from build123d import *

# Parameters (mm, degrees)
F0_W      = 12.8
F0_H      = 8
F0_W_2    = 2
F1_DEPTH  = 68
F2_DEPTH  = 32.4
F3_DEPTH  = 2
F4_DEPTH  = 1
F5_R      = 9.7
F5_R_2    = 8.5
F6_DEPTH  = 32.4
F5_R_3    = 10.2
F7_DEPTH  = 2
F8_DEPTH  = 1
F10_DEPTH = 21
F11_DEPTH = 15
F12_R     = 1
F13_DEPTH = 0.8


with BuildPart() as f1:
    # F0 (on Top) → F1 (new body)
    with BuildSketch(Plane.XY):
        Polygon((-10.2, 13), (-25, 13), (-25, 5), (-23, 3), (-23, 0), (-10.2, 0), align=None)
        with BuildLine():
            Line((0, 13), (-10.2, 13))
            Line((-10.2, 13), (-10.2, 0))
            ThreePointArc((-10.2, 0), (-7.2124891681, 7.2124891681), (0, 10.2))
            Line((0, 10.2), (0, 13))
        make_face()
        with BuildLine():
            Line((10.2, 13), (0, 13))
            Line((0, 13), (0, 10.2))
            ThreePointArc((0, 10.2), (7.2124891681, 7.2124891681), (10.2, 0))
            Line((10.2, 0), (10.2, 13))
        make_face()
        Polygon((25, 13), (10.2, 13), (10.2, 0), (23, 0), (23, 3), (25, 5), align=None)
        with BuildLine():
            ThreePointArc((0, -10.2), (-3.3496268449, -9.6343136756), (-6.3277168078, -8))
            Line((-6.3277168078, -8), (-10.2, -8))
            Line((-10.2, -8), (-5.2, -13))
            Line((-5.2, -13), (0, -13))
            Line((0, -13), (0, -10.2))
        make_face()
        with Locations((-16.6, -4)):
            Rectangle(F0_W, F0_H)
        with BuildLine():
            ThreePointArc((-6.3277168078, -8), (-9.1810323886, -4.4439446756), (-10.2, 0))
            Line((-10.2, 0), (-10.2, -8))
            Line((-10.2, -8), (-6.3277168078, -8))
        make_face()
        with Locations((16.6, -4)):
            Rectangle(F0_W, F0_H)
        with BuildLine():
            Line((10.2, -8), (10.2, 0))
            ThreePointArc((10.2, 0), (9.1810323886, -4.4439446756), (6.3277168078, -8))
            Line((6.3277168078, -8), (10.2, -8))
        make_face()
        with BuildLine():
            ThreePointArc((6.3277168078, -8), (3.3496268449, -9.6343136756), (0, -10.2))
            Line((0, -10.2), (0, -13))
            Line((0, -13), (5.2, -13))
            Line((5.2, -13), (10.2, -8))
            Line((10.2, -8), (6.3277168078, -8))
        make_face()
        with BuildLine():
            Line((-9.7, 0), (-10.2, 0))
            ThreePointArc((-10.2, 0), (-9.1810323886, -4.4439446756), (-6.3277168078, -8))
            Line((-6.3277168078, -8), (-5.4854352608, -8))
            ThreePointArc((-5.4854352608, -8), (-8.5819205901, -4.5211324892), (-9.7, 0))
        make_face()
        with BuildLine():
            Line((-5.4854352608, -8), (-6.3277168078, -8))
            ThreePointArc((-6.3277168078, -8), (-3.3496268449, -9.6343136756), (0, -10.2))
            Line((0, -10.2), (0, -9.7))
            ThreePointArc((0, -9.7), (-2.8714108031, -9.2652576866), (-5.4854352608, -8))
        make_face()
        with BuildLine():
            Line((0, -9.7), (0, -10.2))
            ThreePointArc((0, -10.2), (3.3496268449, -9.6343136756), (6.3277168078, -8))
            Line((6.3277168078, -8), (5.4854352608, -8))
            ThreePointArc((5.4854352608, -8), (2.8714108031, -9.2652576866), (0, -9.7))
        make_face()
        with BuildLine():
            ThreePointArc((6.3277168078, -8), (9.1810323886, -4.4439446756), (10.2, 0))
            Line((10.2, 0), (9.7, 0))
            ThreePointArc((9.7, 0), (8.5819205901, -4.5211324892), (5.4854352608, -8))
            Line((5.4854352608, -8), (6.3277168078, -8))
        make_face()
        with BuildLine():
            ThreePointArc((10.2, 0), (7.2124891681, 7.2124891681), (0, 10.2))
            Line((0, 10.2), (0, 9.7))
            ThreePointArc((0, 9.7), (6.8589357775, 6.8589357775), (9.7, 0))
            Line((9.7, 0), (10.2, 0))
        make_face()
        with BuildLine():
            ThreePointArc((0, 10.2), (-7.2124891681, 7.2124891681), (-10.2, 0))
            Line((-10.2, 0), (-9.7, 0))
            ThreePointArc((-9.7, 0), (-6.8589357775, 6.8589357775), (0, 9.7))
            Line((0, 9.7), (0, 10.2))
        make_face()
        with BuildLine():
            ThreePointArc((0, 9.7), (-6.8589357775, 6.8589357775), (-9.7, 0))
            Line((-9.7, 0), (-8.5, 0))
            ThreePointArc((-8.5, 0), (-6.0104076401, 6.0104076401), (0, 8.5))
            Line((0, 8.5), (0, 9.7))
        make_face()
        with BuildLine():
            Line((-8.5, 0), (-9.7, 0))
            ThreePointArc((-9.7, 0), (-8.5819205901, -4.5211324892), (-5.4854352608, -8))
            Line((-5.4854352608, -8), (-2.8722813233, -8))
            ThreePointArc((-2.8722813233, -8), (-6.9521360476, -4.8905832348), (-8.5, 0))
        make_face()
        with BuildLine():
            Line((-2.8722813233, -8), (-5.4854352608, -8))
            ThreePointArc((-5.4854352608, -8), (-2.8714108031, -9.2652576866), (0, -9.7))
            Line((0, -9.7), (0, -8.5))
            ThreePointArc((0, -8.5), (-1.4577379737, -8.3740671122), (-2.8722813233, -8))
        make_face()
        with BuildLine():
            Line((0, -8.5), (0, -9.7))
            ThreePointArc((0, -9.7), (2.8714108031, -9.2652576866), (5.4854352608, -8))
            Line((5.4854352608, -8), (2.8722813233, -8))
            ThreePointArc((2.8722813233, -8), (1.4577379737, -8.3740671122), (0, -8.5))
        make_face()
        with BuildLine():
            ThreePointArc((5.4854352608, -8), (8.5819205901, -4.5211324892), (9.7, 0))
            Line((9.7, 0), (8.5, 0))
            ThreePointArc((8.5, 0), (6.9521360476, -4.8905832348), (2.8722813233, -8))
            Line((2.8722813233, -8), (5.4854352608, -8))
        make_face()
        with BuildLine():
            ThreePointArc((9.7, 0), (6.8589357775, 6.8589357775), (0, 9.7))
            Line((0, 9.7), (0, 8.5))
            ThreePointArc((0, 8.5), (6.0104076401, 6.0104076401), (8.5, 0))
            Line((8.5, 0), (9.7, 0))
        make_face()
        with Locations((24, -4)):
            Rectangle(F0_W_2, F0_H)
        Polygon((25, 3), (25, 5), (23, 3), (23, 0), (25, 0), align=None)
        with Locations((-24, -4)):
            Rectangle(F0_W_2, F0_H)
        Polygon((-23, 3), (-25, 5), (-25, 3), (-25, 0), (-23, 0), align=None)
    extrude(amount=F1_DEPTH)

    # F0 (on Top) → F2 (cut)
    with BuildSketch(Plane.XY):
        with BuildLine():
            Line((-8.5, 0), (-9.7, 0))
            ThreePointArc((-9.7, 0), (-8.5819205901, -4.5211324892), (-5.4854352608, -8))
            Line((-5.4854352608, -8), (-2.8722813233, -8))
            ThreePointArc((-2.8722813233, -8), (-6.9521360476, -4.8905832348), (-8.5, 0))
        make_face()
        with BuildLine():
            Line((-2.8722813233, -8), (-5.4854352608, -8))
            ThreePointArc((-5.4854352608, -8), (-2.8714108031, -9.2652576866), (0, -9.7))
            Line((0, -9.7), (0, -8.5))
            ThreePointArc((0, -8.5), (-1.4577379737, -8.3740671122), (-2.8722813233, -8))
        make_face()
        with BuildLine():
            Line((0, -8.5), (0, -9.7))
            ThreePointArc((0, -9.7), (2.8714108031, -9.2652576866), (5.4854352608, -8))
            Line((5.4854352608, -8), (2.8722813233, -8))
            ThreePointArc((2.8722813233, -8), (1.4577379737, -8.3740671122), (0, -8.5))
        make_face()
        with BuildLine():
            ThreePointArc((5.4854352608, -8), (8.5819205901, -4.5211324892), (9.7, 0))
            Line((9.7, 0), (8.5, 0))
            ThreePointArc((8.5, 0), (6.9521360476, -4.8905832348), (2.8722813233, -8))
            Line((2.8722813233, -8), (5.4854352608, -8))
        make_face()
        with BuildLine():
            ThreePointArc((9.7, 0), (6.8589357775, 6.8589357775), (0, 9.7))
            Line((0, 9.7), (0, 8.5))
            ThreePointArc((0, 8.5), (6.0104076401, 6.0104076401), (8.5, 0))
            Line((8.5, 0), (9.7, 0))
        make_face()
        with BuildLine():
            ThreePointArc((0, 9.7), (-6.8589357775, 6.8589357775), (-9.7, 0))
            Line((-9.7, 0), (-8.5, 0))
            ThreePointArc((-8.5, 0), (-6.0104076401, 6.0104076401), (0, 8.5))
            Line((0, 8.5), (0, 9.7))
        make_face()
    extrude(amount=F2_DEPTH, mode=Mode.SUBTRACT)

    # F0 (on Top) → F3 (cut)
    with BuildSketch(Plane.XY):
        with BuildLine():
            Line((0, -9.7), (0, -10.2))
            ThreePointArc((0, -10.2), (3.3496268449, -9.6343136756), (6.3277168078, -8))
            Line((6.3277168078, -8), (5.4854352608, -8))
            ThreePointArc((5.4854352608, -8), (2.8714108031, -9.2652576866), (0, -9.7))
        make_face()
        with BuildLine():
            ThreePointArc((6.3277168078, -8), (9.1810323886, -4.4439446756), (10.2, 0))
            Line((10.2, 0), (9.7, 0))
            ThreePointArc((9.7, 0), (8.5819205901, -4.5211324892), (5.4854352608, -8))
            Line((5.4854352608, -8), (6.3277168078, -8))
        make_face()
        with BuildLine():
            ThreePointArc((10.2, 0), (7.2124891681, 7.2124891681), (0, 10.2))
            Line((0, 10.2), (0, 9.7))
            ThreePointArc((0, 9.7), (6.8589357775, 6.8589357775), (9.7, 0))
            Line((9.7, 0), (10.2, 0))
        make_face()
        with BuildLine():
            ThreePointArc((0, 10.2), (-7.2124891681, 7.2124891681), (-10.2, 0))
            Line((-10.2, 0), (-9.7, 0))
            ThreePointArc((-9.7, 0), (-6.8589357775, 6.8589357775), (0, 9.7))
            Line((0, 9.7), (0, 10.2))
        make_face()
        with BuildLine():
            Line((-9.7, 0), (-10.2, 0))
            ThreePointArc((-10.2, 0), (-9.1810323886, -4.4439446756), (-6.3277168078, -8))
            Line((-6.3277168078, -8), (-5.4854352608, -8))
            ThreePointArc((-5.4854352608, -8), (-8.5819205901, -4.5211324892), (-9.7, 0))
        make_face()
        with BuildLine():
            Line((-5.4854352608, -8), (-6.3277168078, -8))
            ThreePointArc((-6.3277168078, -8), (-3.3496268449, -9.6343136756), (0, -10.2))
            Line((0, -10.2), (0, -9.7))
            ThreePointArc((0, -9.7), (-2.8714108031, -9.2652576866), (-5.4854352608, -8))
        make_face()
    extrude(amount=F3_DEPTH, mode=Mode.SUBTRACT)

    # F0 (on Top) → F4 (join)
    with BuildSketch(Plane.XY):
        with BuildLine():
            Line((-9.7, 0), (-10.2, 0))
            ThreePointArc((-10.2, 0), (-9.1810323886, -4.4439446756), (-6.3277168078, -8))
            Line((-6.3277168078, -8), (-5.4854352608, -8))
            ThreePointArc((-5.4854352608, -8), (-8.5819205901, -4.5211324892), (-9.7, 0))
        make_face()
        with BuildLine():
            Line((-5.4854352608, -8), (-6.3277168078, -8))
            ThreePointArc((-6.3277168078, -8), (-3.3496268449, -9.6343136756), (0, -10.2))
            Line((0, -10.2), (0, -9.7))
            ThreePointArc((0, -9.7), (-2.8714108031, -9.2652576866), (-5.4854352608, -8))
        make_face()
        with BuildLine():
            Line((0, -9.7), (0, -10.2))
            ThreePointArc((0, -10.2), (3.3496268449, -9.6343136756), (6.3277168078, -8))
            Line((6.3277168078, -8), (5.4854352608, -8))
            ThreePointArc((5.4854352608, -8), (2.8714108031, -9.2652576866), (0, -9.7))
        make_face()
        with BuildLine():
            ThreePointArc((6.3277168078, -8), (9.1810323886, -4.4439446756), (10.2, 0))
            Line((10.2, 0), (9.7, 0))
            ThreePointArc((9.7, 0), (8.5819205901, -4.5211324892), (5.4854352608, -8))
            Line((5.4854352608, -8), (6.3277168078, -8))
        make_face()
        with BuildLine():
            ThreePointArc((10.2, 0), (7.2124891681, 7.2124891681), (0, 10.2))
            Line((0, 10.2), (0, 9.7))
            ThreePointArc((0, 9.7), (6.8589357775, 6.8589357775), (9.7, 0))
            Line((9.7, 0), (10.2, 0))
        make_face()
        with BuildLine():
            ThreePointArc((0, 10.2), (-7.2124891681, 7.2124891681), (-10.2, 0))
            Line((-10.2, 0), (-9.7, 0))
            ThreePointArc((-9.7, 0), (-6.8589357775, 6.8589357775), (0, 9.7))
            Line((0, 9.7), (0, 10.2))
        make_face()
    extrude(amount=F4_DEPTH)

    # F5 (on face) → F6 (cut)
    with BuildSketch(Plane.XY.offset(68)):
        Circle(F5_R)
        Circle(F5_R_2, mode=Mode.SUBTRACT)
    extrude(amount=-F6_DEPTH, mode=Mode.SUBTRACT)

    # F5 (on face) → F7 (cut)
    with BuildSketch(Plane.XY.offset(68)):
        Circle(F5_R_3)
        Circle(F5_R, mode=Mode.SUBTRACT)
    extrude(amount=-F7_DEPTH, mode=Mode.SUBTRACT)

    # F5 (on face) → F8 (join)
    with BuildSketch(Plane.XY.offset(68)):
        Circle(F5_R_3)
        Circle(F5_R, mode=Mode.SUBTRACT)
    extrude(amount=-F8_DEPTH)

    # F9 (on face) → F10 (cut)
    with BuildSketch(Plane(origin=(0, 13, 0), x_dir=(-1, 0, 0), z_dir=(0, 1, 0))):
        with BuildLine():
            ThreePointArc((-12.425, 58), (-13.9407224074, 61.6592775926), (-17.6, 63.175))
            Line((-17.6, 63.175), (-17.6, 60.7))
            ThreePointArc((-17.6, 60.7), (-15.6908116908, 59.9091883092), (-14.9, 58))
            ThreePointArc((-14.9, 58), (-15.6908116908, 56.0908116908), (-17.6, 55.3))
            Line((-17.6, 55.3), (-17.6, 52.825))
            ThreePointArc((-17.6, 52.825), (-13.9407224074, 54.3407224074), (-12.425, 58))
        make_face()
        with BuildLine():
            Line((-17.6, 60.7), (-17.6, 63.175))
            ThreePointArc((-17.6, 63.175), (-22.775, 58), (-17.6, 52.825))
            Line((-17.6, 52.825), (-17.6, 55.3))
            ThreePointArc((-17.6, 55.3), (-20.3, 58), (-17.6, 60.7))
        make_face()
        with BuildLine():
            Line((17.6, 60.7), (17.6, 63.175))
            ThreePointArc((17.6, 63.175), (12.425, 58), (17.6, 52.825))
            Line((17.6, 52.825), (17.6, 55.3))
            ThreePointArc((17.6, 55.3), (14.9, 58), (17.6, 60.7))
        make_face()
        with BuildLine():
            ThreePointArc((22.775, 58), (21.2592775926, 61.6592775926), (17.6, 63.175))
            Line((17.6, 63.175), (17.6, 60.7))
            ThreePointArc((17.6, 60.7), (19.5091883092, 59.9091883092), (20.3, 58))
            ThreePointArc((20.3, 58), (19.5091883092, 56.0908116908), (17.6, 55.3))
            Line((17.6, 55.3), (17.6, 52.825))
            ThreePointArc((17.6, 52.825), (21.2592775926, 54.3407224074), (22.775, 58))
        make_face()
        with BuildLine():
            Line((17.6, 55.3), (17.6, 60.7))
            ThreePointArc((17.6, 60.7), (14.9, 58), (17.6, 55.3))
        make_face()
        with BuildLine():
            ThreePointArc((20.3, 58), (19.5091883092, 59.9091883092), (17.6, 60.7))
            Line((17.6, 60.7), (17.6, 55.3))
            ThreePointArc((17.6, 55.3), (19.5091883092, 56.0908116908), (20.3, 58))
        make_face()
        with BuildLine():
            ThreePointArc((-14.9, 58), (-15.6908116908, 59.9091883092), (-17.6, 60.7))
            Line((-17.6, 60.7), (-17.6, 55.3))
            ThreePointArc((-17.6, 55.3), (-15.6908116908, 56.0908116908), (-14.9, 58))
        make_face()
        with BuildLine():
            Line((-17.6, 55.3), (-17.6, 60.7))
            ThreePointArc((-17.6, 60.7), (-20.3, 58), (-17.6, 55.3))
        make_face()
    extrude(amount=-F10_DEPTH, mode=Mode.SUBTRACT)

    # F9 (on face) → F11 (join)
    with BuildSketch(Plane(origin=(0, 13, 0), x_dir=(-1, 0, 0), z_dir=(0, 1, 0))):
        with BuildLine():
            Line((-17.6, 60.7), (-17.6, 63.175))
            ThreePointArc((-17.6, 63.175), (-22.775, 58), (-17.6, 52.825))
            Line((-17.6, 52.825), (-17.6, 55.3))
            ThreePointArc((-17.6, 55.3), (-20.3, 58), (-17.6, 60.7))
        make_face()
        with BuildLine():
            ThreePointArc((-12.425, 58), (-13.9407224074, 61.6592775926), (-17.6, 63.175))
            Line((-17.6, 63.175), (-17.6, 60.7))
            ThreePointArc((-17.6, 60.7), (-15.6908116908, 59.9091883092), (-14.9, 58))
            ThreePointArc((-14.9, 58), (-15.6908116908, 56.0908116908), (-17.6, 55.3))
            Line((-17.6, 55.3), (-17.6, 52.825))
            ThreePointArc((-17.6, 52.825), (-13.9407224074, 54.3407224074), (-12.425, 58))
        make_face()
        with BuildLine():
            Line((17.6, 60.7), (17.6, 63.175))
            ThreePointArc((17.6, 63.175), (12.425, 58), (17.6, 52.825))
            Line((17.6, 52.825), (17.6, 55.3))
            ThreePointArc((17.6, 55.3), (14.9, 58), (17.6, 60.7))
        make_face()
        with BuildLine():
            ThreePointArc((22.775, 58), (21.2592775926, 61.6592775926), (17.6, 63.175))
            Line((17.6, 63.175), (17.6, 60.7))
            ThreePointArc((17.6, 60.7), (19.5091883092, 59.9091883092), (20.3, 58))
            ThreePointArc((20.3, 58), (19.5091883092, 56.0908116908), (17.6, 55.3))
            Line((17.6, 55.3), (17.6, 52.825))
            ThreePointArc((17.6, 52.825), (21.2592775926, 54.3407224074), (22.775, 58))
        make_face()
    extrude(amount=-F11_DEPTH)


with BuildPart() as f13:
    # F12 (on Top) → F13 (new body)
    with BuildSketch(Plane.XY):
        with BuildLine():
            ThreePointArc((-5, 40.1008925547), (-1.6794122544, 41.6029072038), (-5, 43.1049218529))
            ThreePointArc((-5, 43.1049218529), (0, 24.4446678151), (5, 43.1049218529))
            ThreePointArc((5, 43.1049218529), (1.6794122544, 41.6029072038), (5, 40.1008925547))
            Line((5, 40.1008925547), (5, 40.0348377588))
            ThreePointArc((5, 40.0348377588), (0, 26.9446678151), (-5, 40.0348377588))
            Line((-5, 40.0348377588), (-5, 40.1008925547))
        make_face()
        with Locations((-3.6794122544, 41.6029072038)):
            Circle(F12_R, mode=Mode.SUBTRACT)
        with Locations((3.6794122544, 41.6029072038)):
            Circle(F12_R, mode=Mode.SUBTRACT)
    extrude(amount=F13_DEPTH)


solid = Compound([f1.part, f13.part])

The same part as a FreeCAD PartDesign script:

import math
import FreeCAD as App
import Part
import Sketcher
from FreeCAD import Vector

doc = App.newDocument("Part")
params = doc.addObject("Spreadsheet::Sheet", "Params")
for row, (alias, value) in enumerate([
    ("sketch1_radius", "8.5 mm"),
    ("sketch1_width", "50 mm"),
    ("sketch1_height", "21 mm"),
    ("sketch1_width2", "14.8 mm"),
    ("sketch1_width3", "10.4 mm"),
    ("pad1_length", "68 mm"),
    ("sketch2_radius", "9.7 mm"),
    ("sketch2_radius2", "8.5 mm"),
    ("pocket1_length", "32.4 mm"),
    ("sketch3_radius", "10.2 mm"),
    ("sketch3_radius2", "9.7 mm"),
    ("pocket2_length", "2 mm"),
    ("sketch4_radius", "10.2 mm"),
    ("sketch4_radius2", "9.7 mm"),
    ("pad2_length", "1 mm"),
    ("sketch5_diameter", "17 mm"),
    ("sketch5_diameter2", "19.4 mm"),
    ("pocket3_length", "32.4 mm"),
    ("sketch6_diameter", "20.4 mm"),
    ("sketch6_diameter2", "19.4 mm"),
    ("pocket4_length", "2 mm"),
    ("sketch7_diameter", "20.4 mm"),
    ("sketch7_diameter2", "19.4 mm"),
    ("pad3_length", "1 mm"),
    ("pocket5_length", "21 mm"),
    ("sketch9_radius", "2.7 mm"),
    ("pad4_length", "15 mm"),
    ("sketch10_diameter", "2 mm"),
    ("sketch10_radius", "2 mm"),
    ("sketch10_radius2", "10 mm"),
    ("sketch10_radius3", "7.5 mm"),
    ("pad5_length", "0.8 mm"),
], start=1):
    params.set(f"A{row}", alias)
    params.set(f"B{row}", "=" + value)
    params.setAlias(f"B{row}", alias)

body = doc.addObject("PartDesign::Body", "Body")

sketch1 = doc.addObject("Sketcher::SketchObject", "Sketch")
body.addObject(sketch1)
sketch1.AttachmentSupport = (doc.XY_Plane, [""])
sketch1.MapMode = "FlatFace"
sketch1.addGeometry([
    Part.LineSegment(Vector(-25, 13, 0), Vector(-25, -8, 0)),
    Part.LineSegment(Vector(-25, -8, 0), Vector(-10.2, -8, 0)),
    Part.LineSegment(Vector(-10.2, -8, 0), Vector(-5.2, -13, 0)),
    Part.LineSegment(Vector(-5.2, -13, 0), Vector(5.2, -13, 0)),
    Part.LineSegment(Vector(5.2, -13, 0), Vector(10.2, -8, 0)),
    Part.LineSegment(Vector(10.2, -8, 0), Vector(25, -8, 0)),
    Part.LineSegment(Vector(25, -8, 0), Vector(25, 13, 0)),
    Part.LineSegment(Vector(25, 13, 0), Vector(-25, 13, 0)),
    Part.ArcOfCircle(Part.Circle(Vector(0, 0, 0), Vector(0, 0, 1), 8.5), math.radians(-70.250077), math.radians(0)),
    Part.ArcOfCircle(Part.Circle(Vector(0, 0, 0), Vector(0, 0, 1), 8.5), math.radians(-90), math.radians(-70.250077)),
    Part.ArcOfCircle(Part.Circle(Vector(0, 0, 0), Vector(0, 0, 1), 8.5), math.radians(-109.749923), math.radians(-90)),
    Part.ArcOfCircle(Part.Circle(Vector(0, 0, 0), Vector(0, 0, 1), 8.5), math.radians(180), math.radians(250.250077)),
    Part.ArcOfCircle(Part.Circle(Vector(0, 0, 0), Vector(0, 0, 1), 8.5), math.radians(90), math.radians(180)),
    Part.ArcOfCircle(Part.Circle(Vector(0, 0, 0), Vector(0, 0, 1), 8.5), math.radians(0), math.radians(90)),
], False)
sketch1.addConstraint([
    Sketcher.Constraint("Coincident", 0, 2, 1, 1),
    Sketcher.Constraint("Coincident", 1, 2, 2, 1),
    Sketcher.Constraint("Coincident", 2, 2, 3, 1),
    Sketcher.Constraint("Coincident", 3, 2, 4, 1),
    Sketcher.Constraint("Coincident", 4, 2, 5, 1),
    Sketcher.Constraint("Coincident", 5, 2, 6, 1),
    Sketcher.Constraint("Coincident", 6, 2, 7, 1),
    Sketcher.Constraint("Coincident", 7, 2, 0, 1),
    Sketcher.Constraint("Tangent", 8, 1, 9, 2),
    Sketcher.Constraint("Tangent", 9, 1, 10, 2),
    Sketcher.Constraint("Tangent", 10, 1, 11, 2),
    Sketcher.Constraint("Tangent", 11, 1, 12, 2),
    Sketcher.Constraint("Tangent", 12, 1, 13, 2),
    Sketcher.Constraint("Tangent", 13, 1, 8, 2),
    Sketcher.Constraint("Vertical", 0),
    Sketcher.Constraint("Horizontal", 1),
    Sketcher.Constraint("Horizontal", 3),
    Sketcher.Constraint("Horizontal", 5),
    Sketcher.Constraint("Vertical", 6),
    Sketcher.Constraint("Horizontal", 7),
    Sketcher.Constraint("Coincident", 8, 3, -1, 1),
    Sketcher.Constraint("Coincident", 10, 3, -1, 1),
    Sketcher.Constraint("Equal", 10, 11),
    Sketcher.Constraint("Symmetric", 1, 2, 4, 2, -2),
    Sketcher.Constraint("PointOnObject", 9, 1, -2),
    Sketcher.Constraint("PointOnObject", 11, 1, -1),
    Sketcher.Constraint("PointOnObject", 12, 1, -2),
    Sketcher.Constraint("PointOnObject", 13, 1, -1),
    Sketcher.Constraint("Perpendicular", 2, 4),
    Sketcher.Constraint("Horizontal", 5, 2, 8, 1),
    Sketcher.Constraint("Horizontal", 8, 1, 10, 1),
    Sketcher.Constraint("Equal", 1, 5),
    Sketcher.Constraint("Equal", 2, 4),
    Sketcher.Constraint("Radius", 8, 8.5),
    Sketcher.Constraint("DistanceX", 7, 2, 7, 1, 50.0),
    Sketcher.Constraint("DistanceY", 0, 2, 0, 1, 21.0),
    Sketcher.Constraint("DistanceX", 1, 1, 1, 2, 14.8),
    Sketcher.Constraint("DistanceX", 3, 1, 3, 2, 10.4),
    Sketcher.Constraint("DistanceY", 0, 2, -1, 1, 8.0),
])
sketch1.setExpression("Constraints[33]", "Params.sketch1_radius")
sketch1.setExpression("Constraints[34]", "Params.sketch1_width")
sketch1.setExpression("Constraints[35]", "Params.sketch1_height")
sketch1.setExpression("Constraints[36]", "Params.sketch1_width2")
sketch1.setExpression("Constraints[37]", "Params.sketch1_width3")
pad1 = doc.addObject("PartDesign::Pad", "Pad")
body.addObject(pad1)
pad1.Profile = sketch1
pad1.setExpression("Length", "Params.pad1_length")

sketch2 = doc.addObject("Sketcher::SketchObject", "Sketch001")
body.addObject(sketch2)
sketch2.AttachmentSupport = (doc.XY_Plane, [""])
sketch2.MapMode = "FlatFace"
sketch2.addGeometry([
    Part.ArcOfCircle(Part.Circle(Vector(0, 0, 0), Vector(0, 0, 1), 9.7), math.radians(180), math.radians(235.56237)),
    Part.ArcOfCircle(Part.Circle(Vector(0, 0, 0), Vector(0, 0, 1), 9.7), math.radians(-124.43763), math.radians(-90)),
    Part.ArcOfCircle(Part.Circle(Vector(0, 0, 0), Vector(0, 0, 1), 9.7), math.radians(-90), math.radians(-55.56237)),
    Part.ArcOfCircle(Part.Circle(Vector(0, 0, 0), Vector(0, 0, 1), 9.7), math.radians(-55.56237), math.radians(0)),
    Part.ArcOfCircle(Part.Circle(Vector(0, 0, 0), Vector(0, 0, 1), 9.7), math.radians(0), math.radians(90)),
    Part.ArcOfCircle(Part.Circle(Vector(0, 0, 0), Vector(0, 0, 1), 9.7), math.radians(90), math.radians(180)),
    Part.ArcOfCircle(Part.Circle(Vector(0, 0, 0), Vector(0, 0, 1), 8.5), math.radians(0), math.radians(90)),
    Part.ArcOfCircle(Part.Circle(Vector(0, 0, 0), Vector(0, 0, 1), 8.5), math.radians(-70.250077), math.radians(0)),
    Part.ArcOfCircle(Part.Circle(Vector(0, 0, 0), Vector(0, 0, 1), 8.5), math.radians(-90), math.radians(-70.250077)),
    Part.ArcOfCircle(Part.Circle(Vector(0, 0, 0), Vector(0, 0, 1), 8.5), math.radians(-109.749923), math.radians(-90)),
    Part.ArcOfCircle(Part.Circle(Vector(0, 0, 0), Vector(0, 0, 1), 8.5), math.radians(180), math.radians(250.250077)),
    Part.ArcOfCircle(Part.Circle(Vector(0, 0, 0), Vector(0, 0, 1), 8.5), math.radians(90), math.radians(180)),
], False)
sketch2.addConstraint([
    Sketcher.Constraint("Tangent", 0, 2, 1, 1),
    Sketcher.Constraint("Tangent", 1, 2, 2, 1),
    Sketcher.Constraint("Tangent", 2, 2, 3, 1),
    Sketcher.Constraint("Tangent", 3, 2, 4, 1),
    Sketcher.Constraint("Tangent", 4, 2, 5, 1),
    Sketcher.Constraint("Tangent", 5, 2, 0, 1),
    Sketcher.Constraint("Tangent", 6, 1, 7, 2),
    Sketcher.Constraint("Tangent", 7, 1, 8, 2),
    Sketcher.Constraint("Tangent", 8, 1, 9, 2),
    Sketcher.Constraint("Tangent", 9, 1, 10, 2),
    Sketcher.Constraint("Tangent", 10, 1, 11, 2),
    Sketcher.Constraint("Tangent", 11, 1, 6, 2),
    Sketcher.Constraint("Coincident", 0, 3, -1, 1),
    Sketcher.Constraint("Coincident", 2, 3, -1, 1),
    Sketcher.Constraint("Coincident", 6, 3, -1, 1),
    Sketcher.Constraint("Coincident", 8, 3, -1, 1),
    Sketcher.Constraint("Equal", 2, 3),
    Sketcher.Constraint("Equal", 8, 9),
    Sketcher.Constraint("PointOnObject", 1, 2, -2),
    Sketcher.Constraint("PointOnObject", 3, 2, -1),
    Sketcher.Constraint("PointOnObject", 4, 2, -2),
    Sketcher.Constraint("PointOnObject", 5, 2, -1),
    Sketcher.Constraint("PointOnObject", 6, 1, -1),
    Sketcher.Constraint("PointOnObject", 8, 1, -2),
    Sketcher.Constraint("PointOnObject", 10, 1, -1),
    Sketcher.Constraint("PointOnObject", 11, 1, -2),
    Sketcher.Constraint("Horizontal", 0, 2, 2, 2),
    Sketcher.Constraint("Horizontal", 2, 2, 7, 1),
    Sketcher.Constraint("Horizontal", 7, 1, 9, 1),
    Sketcher.Constraint("Radius", 0, 9.7),
    Sketcher.Constraint("Radius", 6, 8.5),
    Sketcher.Constraint("DistanceY", 0, 2, -1, 1, 8.0),
])
sketch2.setExpression("Constraints[29]", "Params.sketch2_radius")
sketch2.setExpression("Constraints[30]", "Params.sketch2_radius2")
pocket1 = doc.addObject("PartDesign::Pocket", "Pocket")
body.addObject(pocket1)
pocket1.Profile = sketch2
pocket1.setExpression("Length", "Params.pocket1_length")
pocket1.Reversed = True

sketch3 = doc.addObject("Sketcher::SketchObject", "Sketch002")
body.addObject(sketch3)
sketch3.AttachmentSupport = (doc.XY_Plane, [""])
sketch3.MapMode = "FlatFace"
sketch3.addGeometry([
    Part.ArcOfCircle(Part.Circle(Vector(0, 0, 0), Vector(0, 0, 1), 10.2), math.radians(-51.657251), math.radians(0)),
    Part.ArcOfCircle(Part.Circle(Vector(0, 0, 0), Vector(0, 0, 1), 10.2), math.radians(0), math.radians(90)),
    Part.ArcOfCircle(Part.Circle(Vector(0, 0, 0), Vector(0, 0, 1), 10.2), math.radians(90), math.radians(180)),
    Part.ArcOfCircle(Part.Circle(Vector(0, 0, 0), Vector(0, 0, 1), 10.2), math.radians(180), math.radians(231.657251)),
    Part.ArcOfCircle(Part.Circle(Vector(0, 0, 0), Vector(0, 0, 1), 10.2), math.radians(-128.342749), math.radians(-51.657251)),
    Part.ArcOfCircle(Part.Circle(Vector(0, 0, 0), Vector(0, 0, 1), 9.7), math.radians(180), math.radians(235.56237)),
    Part.ArcOfCircle(Part.Circle(Vector(0, 0, 0), Vector(0, 0, 1), 9.7), math.radians(90), math.radians(180)),
    Part.ArcOfCircle(Part.Circle(Vector(0, 0, 0), Vector(0, 0, 1), 9.7), math.radians(0), math.radians(90)),
    Part.ArcOfCircle(Part.Circle(Vector(0, 0, 0), Vector(0, 0, 1), 9.7), math.radians(-55.56237), math.radians(0)),
    Part.ArcOfCircle(Part.Circle(Vector(0, 0, 0), Vector(0, 0, 1), 9.7), math.radians(-90), math.radians(-55.56237)),
    Part.ArcOfCircle(Part.Circle(Vector(0, 0, 0), Vector(0, 0, 1), 9.7), math.radians(-124.43763), math.radians(-90)),
], False)
sketch3.addConstraint([
    Sketcher.Constraint("Tangent", 0, 2, 1, 1),
    Sketcher.Constraint("Tangent", 1, 2, 2, 1),
    Sketcher.Constraint("Tangent", 2, 2, 3, 1),
    Sketcher.Constraint("Tangent", 3, 2, 4, 1),
    Sketcher.Constraint("Tangent", 4, 2, 0, 1),
    Sketcher.Constraint("Tangent", 5, 1, 6, 2),
    Sketcher.Constraint("Tangent", 6, 1, 7, 2),
    Sketcher.Constraint("Tangent", 7, 1, 8, 2),
    Sketcher.Constraint("Tangent", 8, 1, 9, 2),
    Sketcher.Constraint("Tangent", 9, 1, 10, 2),
    Sketcher.Constraint("Tangent", 10, 1, 5, 2),
    Sketcher.Constraint("Coincident", 0, 3, -1, 1),
    Sketcher.Constraint("Coincident", 2, 3, -1, 1),
    Sketcher.Constraint("Coincident", 5, 3, -1, 1),
    Sketcher.Constraint("Coincident", 7, 3, -1, 1),
    Sketcher.Constraint("Equal", 7, 8),
    Sketcher.Constraint("PointOnObject", 0, 2, -1),
    Sketcher.Constraint("PointOnObject", 1, 2, -2),
    Sketcher.Constraint("PointOnObject", 2, 2, -1),
    Sketcher.Constraint("PointOnObject", 5, 1, -1),
    Sketcher.Constraint("PointOnObject", 6, 1, -2),
    Sketcher.Constraint("PointOnObject", 7, 1, -1),
    Sketcher.Constraint("PointOnObject", 9, 1, -2),
    Sketcher.Constraint("Horizontal", 3, 2, 4, 2),
    Sketcher.Constraint("Horizontal", 4, 2, 8, 1),
    Sketcher.Constraint("Horizontal", 8, 1, 10, 1),
    Sketcher.Constraint("Radius", 0, 10.2),
    Sketcher.Constraint("Radius", 5, 9.7),
    Sketcher.Constraint("DistanceY", 3, 2, -1, 1, 8.0),
])
sketch3.setExpression("Constraints[26]", "Params.sketch3_radius")
sketch3.setExpression("Constraints[27]", "Params.sketch3_radius2")
pocket2 = doc.addObject("PartDesign::Pocket", "Pocket001")
body.addObject(pocket2)
pocket2.Profile = sketch3
pocket2.setExpression("Length", "Params.pocket2_length")
pocket2.Reversed = True

sketch4 = doc.addObject("Sketcher::SketchObject", "Sketch003")
body.addObject(sketch4)
sketch4.AttachmentSupport = (doc.XY_Plane, [""])
sketch4.MapMode = "FlatFace"
sketch4.addGeometry([
    Part.ArcOfCircle(Part.Circle(Vector(0, 0, 0), Vector(0, 0, 1), 10.2), math.radians(180), math.radians(231.657251)),
    Part.ArcOfCircle(Part.Circle(Vector(0, 0, 0), Vector(0, 0, 1), 10.2), math.radians(-128.342749), math.radians(-51.657251)),
    Part.ArcOfCircle(Part.Circle(Vector(0, 0, 0), Vector(0, 0, 1), 10.2), math.radians(-51.657251), math.radians(0)),
    Part.ArcOfCircle(Part.Circle(Vector(0, 0, 0), Vector(0, 0, 1), 10.2), math.radians(0), math.radians(90)),
    Part.ArcOfCircle(Part.Circle(Vector(0, 0, 0), Vector(0, 0, 1), 10.2), math.radians(90), math.radians(180)),
    Part.ArcOfCircle(Part.Circle(Vector(0, 0, 0), Vector(0, 0, 1), 9.7), math.radians(0), math.radians(90)),
    Part.ArcOfCircle(Part.Circle(Vector(0, 0, 0), Vector(0, 0, 1), 9.7), math.radians(-55.56237), math.radians(0)),
    Part.ArcOfCircle(Part.Circle(Vector(0, 0, 0), Vector(0, 0, 1), 9.7), math.radians(-90), math.radians(-55.56237)),
    Part.ArcOfCircle(Part.Circle(Vector(0, 0, 0), Vector(0, 0, 1), 9.7), math.radians(-124.43763), math.radians(-90)),
    Part.ArcOfCircle(Part.Circle(Vector(0, 0, 0), Vector(0, 0, 1), 9.7), math.radians(180), math.radians(235.56237)),
    Part.ArcOfCircle(Part.Circle(Vector(0, 0, 0), Vector(0, 0, 1), 9.7), math.radians(90), math.radians(180)),
], False)
sketch4.addConstraint([
    Sketcher.Constraint("Tangent", 0, 2, 1, 1),
    Sketcher.Constraint("Tangent", 1, 2, 2, 1),
    Sketcher.Constraint("Tangent", 2, 2, 3, 1),
    Sketcher.Constraint("Tangent", 3, 2, 4, 1),
    Sketcher.Constraint("Tangent", 4, 2, 0, 1),
    Sketcher.Constraint("Tangent", 5, 1, 6, 2),
    Sketcher.Constraint("Tangent", 6, 1, 7, 2),
    Sketcher.Constraint("Tangent", 7, 1, 8, 2),
    Sketcher.Constraint("Tangent", 8, 1, 9, 2),
    Sketcher.Constraint("Tangent", 9, 1, 10, 2),
    Sketcher.Constraint("Tangent", 10, 1, 5, 2),
    Sketcher.Constraint("Coincident", 0, 3, -1, 1),
    Sketcher.Constraint("Coincident", 2, 3, -1, 1),
    Sketcher.Constraint("Coincident", 5, 3, -1, 1),
    Sketcher.Constraint("Coincident", 7, 3, -1, 1),
    Sketcher.Constraint("Equal", 7, 8),
    Sketcher.Constraint("PointOnObject", 2, 2, -1),
    Sketcher.Constraint("PointOnObject", 3, 2, -2),
    Sketcher.Constraint("PointOnObject", 4, 2, -1),
    Sketcher.Constraint("PointOnObject", 5, 1, -1),
    Sketcher.Constraint("PointOnObject", 7, 1, -2),
    Sketcher.Constraint("PointOnObject", 9, 1, -1),
    Sketcher.Constraint("PointOnObject", 10, 1, -2),
    Sketcher.Constraint("Horizontal", 0, 2, 1, 2),
    Sketcher.Constraint("Horizontal", 1, 2, 6, 1),
    Sketcher.Constraint("Horizontal", 6, 1, 8, 1),
    Sketcher.Constraint("Radius", 0, 10.2),
    Sketcher.Constraint("Radius", 5, 9.7),
    Sketcher.Constraint("DistanceY", 0, 2, -1, 1, 8.0),
])
sketch4.setExpression("Constraints[26]", "Params.sketch4_radius")
sketch4.setExpression("Constraints[27]", "Params.sketch4_radius2")
pad2 = doc.addObject("PartDesign::Pad", "Pad001")
body.addObject(pad2)
pad2.Profile = sketch4
pad2.setExpression("Length", "Params.pad2_length")

sketch5 = doc.addObject("Sketcher::SketchObject", "Sketch004")
body.addObject(sketch5)
sketch5.AttachmentSupport = (doc.XY_Plane, [""])
sketch5.MapMode = "FlatFace"
sketch5.AttachmentOffset = App.Placement(Vector(0, 0, 68), App.Rotation())
sketch5.addGeometry([
    Part.Circle(Vector(0, 0, 0), Vector(0, 0, 1), 9.7),
    Part.Circle(Vector(0, 0, 0), Vector(0, 0, 1), 8.5),
], False)
sketch5.addConstraint([
    Sketcher.Constraint("Coincident", 0, 3, -1, 1),
    Sketcher.Constraint("Coincident", 1, 3, -1, 1),
    Sketcher.Constraint("Diameter", 1, 17.0),
    Sketcher.Constraint("Diameter", 0, 19.4),
])
sketch5.setExpression("Constraints[2]", "Params.sketch5_diameter")
sketch5.setExpression("Constraints[3]", "Params.sketch5_diameter2")
pocket3 = doc.addObject("PartDesign::Pocket", "Pocket002")
body.addObject(pocket3)
pocket3.Profile = sketch5
pocket3.setExpression("Length", "Params.pocket3_length")

sketch6 = doc.addObject("Sketcher::SketchObject", "Sketch005")
body.addObject(sketch6)
sketch6.AttachmentSupport = (doc.XY_Plane, [""])
sketch6.MapMode = "FlatFace"
sketch6.AttachmentOffset = App.Placement(Vector(0, 0, 68), App.Rotation())
sketch6.addGeometry([
    Part.Circle(Vector(0, 0, 0), Vector(0, 0, 1), 10.2),
    Part.Circle(Vector(0, 0, 0), Vector(0, 0, 1), 9.7),
], False)
sketch6.addConstraint([
    Sketcher.Constraint("Coincident", 0, 3, -1, 1),
    Sketcher.Constraint("Coincident", 1, 3, -1, 1),
    Sketcher.Constraint("Diameter", 0, 20.4),
    Sketcher.Constraint("Diameter", 1, 19.4),
])
sketch6.setExpression("Constraints[2]", "Params.sketch6_diameter")
sketch6.setExpression("Constraints[3]", "Params.sketch6_diameter2")
pocket4 = doc.addObject("PartDesign::Pocket", "Pocket003")
body.addObject(pocket4)
pocket4.Profile = sketch6
pocket4.setExpression("Length", "Params.pocket4_length")

sketch7 = doc.addObject("Sketcher::SketchObject", "Sketch006")
body.addObject(sketch7)
sketch7.AttachmentSupport = (doc.XY_Plane, [""])
sketch7.MapMode = "FlatFace"
sketch7.AttachmentOffset = App.Placement(Vector(0, 0, 68), App.Rotation())
sketch7.addGeometry([
    Part.Circle(Vector(0, 0, 0), Vector(0, 0, 1), 10.2),
    Part.Circle(Vector(0, 0, 0), Vector(0, 0, 1), 9.7),
], False)
sketch7.addConstraint([
    Sketcher.Constraint("Coincident", 0, 3, -1, 1),
    Sketcher.Constraint("Coincident", 1, 3, -1, 1),
    Sketcher.Constraint("Diameter", 0, 20.4),
    Sketcher.Constraint("Diameter", 1, 19.4),
])
sketch7.setExpression("Constraints[2]", "Params.sketch7_diameter")
sketch7.setExpression("Constraints[3]", "Params.sketch7_diameter2")
pad3 = doc.addObject("PartDesign::Pad", "Pad002")
body.addObject(pad3)
pad3.Profile = sketch7
pad3.setExpression("Length", "Params.pad3_length")
pad3.Reversed = True

sketch8 = doc.addObject("Sketcher::SketchObject", "Sketch007")
body.addObject(sketch8)
sketch8.AttachmentSupport = (doc.XZ_Plane, [""])
sketch8.MapMode = "FlatFace"
sketch8.AttachmentOffset = App.Placement(Vector(0, 0, -13), App.Rotation())
sketch8.addGeometry([
    Part.ArcOfCircle(Part.Circle(Vector(17.6, 58, 0), Vector(0, 0, 1), 5.175), math.radians(90), math.radians(180)),
    Part.ArcOfCircle(Part.Circle(Vector(17.6, 58, 0), Vector(0, 0, 1), 5.175), math.radians(-90), math.radians(90)),
    Part.ArcOfCircle(Part.Circle(Vector(17.6, 58, 0), Vector(0, 0, 1), 5.175), math.radians(180), math.radians(270)),
    Part.ArcOfCircle(Part.Circle(Vector(-17.6, 58, 0), Vector(0, 0, 1), 5.175), math.radians(-90), math.radians(90)),
    Part.ArcOfCircle(Part.Circle(Vector(-17.6, 58, 0), Vector(0, 0, 1), 5.175), math.radians(180), math.radians(270)),
    Part.ArcOfCircle(Part.Circle(Vector(-17.6, 58, 0), Vector(0, 0, 1), 5.175), math.radians(90), math.radians(180)),
], False)
sketch8.addConstraint([
    Sketcher.Constraint("Tangent", 0, 1, 1, 2),
    Sketcher.Constraint("Tangent", 1, 1, 2, 2),
    Sketcher.Constraint("Tangent", 2, 1, 0, 2),
    Sketcher.Constraint("Tangent", 3, 1, 4, 2),
    Sketcher.Constraint("Tangent", 4, 1, 5, 2),
    Sketcher.Constraint("Tangent", 5, 1, 3, 2),
    Sketcher.Constraint("Equal", 2, 3),
    Sketcher.Constraint("Symmetric", 0, 3, 3, 3, -2),
    Sketcher.Constraint("Horizontal", 5, 3, 2, 1),
    Sketcher.Constraint("Horizontal", 2, 1, 4, 1),
    Sketcher.Constraint("Vertical", 2, 3, 0, 1),
    Sketcher.Constraint("Vertical", 0, 1, 1, 1),
    Sketcher.Constraint("Vertical", 5, 3, 3, 1),
    Sketcher.Constraint("Vertical", 3, 1, 5, 1),
    Sketcher.Constraint("DistanceY", -1, 1, 0, 3, 58.0),
    Sketcher.Constraint("Radius", 0, 5.175),
    Sketcher.Constraint("DistanceX", -1, 1, 0, 3, 17.6),
])
pocket5 = doc.addObject("PartDesign::Pocket", "Pocket004")
body.addObject(pocket5)
pocket5.Profile = sketch8
pocket5.setExpression("Length", "Params.pocket5_length")
pocket5.Reversed = True

sketch9 = doc.addObject("Sketcher::SketchObject", "Sketch008")
body.addObject(sketch9)
sketch9.AttachmentSupport = (doc.XZ_Plane, [""])
sketch9.MapMode = "FlatFace"
sketch9.AttachmentOffset = App.Placement(Vector(0, 0, -13), App.Rotation())
sketch9.addGeometry([
    Part.ArcOfCircle(Part.Circle(Vector(17.6, 58, 0), Vector(0, 0, 1), 5.175), math.radians(-90), math.radians(90)),
    Part.ArcOfCircle(Part.Circle(Vector(17.6, 58, 0), Vector(0, 0, 1), 5.175), math.radians(180), math.radians(270)),
    Part.ArcOfCircle(Part.Circle(Vector(17.6, 58, 0), Vector(0, 0, 1), 5.175), math.radians(90), math.radians(180)),
    Part.ArcOfCircle(Part.Circle(Vector(17.6, 58, 0), Vector(0, 0, 1), 2.7), math.radians(-90), math.radians(90)),
    Part.ArcOfCircle(Part.Circle(Vector(17.6, 58, 0), Vector(0, 0, 1), 2.7), math.radians(90), math.radians(180)),
    Part.ArcOfCircle(Part.Circle(Vector(17.6, 58, 0), Vector(0, 0, 1), 2.7), math.radians(180), math.radians(270)),
    Part.ArcOfCircle(Part.Circle(Vector(-17.6, 58, 0), Vector(0, 0, 1), 5.175), math.radians(-90), math.radians(90)),
    Part.ArcOfCircle(Part.Circle(Vector(-17.6, 58, 0), Vector(0, 0, 1), 5.175), math.radians(180), math.radians(270)),
    Part.ArcOfCircle(Part.Circle(Vector(-17.6, 58, 0), Vector(0, 0, 1), 5.175), math.radians(90), math.radians(180)),
    Part.ArcOfCircle(Part.Circle(Vector(-17.6, 58, 0), Vector(0, 0, 1), 2.7), math.radians(-90), math.radians(90)),
    Part.ArcOfCircle(Part.Circle(Vector(-17.6, 58, 0), Vector(0, 0, 1), 2.7), math.radians(90), math.radians(180)),
    Part.ArcOfCircle(Part.Circle(Vector(-17.6, 58, 0), Vector(0, 0, 1), 2.7), math.radians(180), math.radians(270)),
], False)
sketch9.addConstraint([
    Sketcher.Constraint("Tangent", 0, 1, 1, 2),
    Sketcher.Constraint("Tangent", 1, 1, 2, 2),
    Sketcher.Constraint("Tangent", 2, 1, 0, 2),
    Sketcher.Constraint("Tangent", 3, 2, 4, 1),
    Sketcher.Constraint("Tangent", 4, 2, 5, 1),
    Sketcher.Constraint("Tangent", 5, 2, 3, 1),
    Sketcher.Constraint("Tangent", 6, 1, 7, 2),
    Sketcher.Constraint("Tangent", 7, 1, 8, 2),
    Sketcher.Constraint("Tangent", 8, 1, 6, 2),
    Sketcher.Constraint("Tangent", 9, 2, 10, 1),
    Sketcher.Constraint("Tangent", 10, 2, 11, 1),
    Sketcher.Constraint("Tangent", 11, 2, 9, 1),
    Sketcher.Constraint("Coincident", 3, 3, 0, 3),
    Sketcher.Constraint("Coincident", 9, 3, 6, 3),
    Sketcher.Constraint("Equal", 2, 6),
    Sketcher.Constraint("Equal", 5, 9),
    Sketcher.Constraint("Symmetric", 0, 3, 6, 3, -2),
    Sketcher.Constraint("Horizontal", 11, 3, 1, 1),
    Sketcher.Constraint("Horizontal", 1, 1, 4, 2),
    Sketcher.Constraint("Horizontal", 4, 2, 7, 1),
    Sketcher.Constraint("Horizontal", 7, 1, 10, 2),
    Sketcher.Constraint("Vertical", 5, 3, 0, 1),
    Sketcher.Constraint("Vertical", 0, 1, 2, 1),
    Sketcher.Constraint("Vertical", 2, 1, 3, 2),
    Sketcher.Constraint("Vertical", 3, 2, 5, 2),
    Sketcher.Constraint("Vertical", 11, 3, 6, 1),
    Sketcher.Constraint("Vertical", 6, 1, 8, 1),
    Sketcher.Constraint("Vertical", 8, 1, 9, 2),
    Sketcher.Constraint("Vertical", 9, 2, 11, 2),
    Sketcher.Constraint("Radius", 3, 2.7),
    Sketcher.Constraint("DistanceY", -1, 1, 0, 3, 58.0),
    Sketcher.Constraint("Radius", 0, 5.175),
    Sketcher.Constraint("DistanceX", -1, 1, 0, 3, 17.6),
])
sketch9.setExpression("Constraints[29]", "Params.sketch9_radius")
pad4 = doc.addObject("PartDesign::Pad", "Pad003")
body.addObject(pad4)
pad4.Profile = sketch9
pad4.setExpression("Length", "Params.pad4_length")
body2 = doc.addObject("PartDesign::Body", "Body001")

sketch10 = doc.addObject("Sketcher::SketchObject", "Sketch009")
body2.addObject(sketch10)
sketch10.AttachmentSupport = (doc.getObject("XY_Plane001"), [""])
sketch10.MapMode = "FlatFace"
sketch10.addGeometry([
    Part.ArcOfCircle(Part.Circle(Vector(-3.679412, 41.602907, 0), Vector(0, 0, 1), 2), math.radians(-131.322289), math.radians(131.322289)),
    Part.ArcOfCircle(Part.Circle(Vector(0, 34.444668, 0), Vector(0, 0, 1), 10), math.radians(120), math.radians(420)),
    Part.ArcOfCircle(Part.Circle(Vector(3.679412, 41.602907, 0), Vector(0, 0, 1), 2), math.radians(48.677711), math.radians(311.322289)),
    Part.LineSegment(Vector(5, 40.100893, 0), Vector(5, 40.034838, 0)),
    Part.ArcOfCircle(Part.Circle(Vector(0, 34.444668, 0), Vector(0, 0, 1), 7.5), math.radians(131.810315), math.radians(408.189685)),
    Part.LineSegment(Vector(-5, 40.034838, 0), Vector(-5, 40.100893, 0)),
    Part.Circle(Vector(-3.679412, 41.602907, 0), Vector(0, 0, 1), 1),
    Part.Circle(Vector(3.679412, 41.602907, 0), Vector(0, 0, 1), 1),
], False)
sketch10.addConstraint([
    Sketcher.Constraint("Coincident", 0, 2, 1, 1),
    Sketcher.Constraint("Coincident", 1, 2, 2, 1),
    Sketcher.Constraint("Coincident", 2, 2, 3, 1),
    Sketcher.Constraint("Coincident", 3, 2, 4, 2),
    Sketcher.Constraint("Coincident", 4, 1, 5, 1),
    Sketcher.Constraint("Coincident", 5, 2, 0, 1),
    Sketcher.Constraint("Vertical", 3),
    Sketcher.Constraint("Vertical", 5),
    Sketcher.Constraint("Coincident", 4, 3, 1, 3),
    Sketcher.Constraint("Coincident", 6, 3, 0, 3),
    Sketcher.Constraint("Coincident", 7, 3, 2, 3),
    Sketcher.Constraint("Equal", 0, 2),
    Sketcher.Constraint("Equal", 6, 7),
    Sketcher.Constraint("Symmetric", 0, 3, 2, 3, -2),
    Sketcher.Constraint("Symmetric", 3, 2, 4, 1, -2),
    Sketcher.Constraint("Vertical", 1, 2, 2, 2),
    Sketcher.Constraint("Diameter", 6, 2.0),
    Sketcher.Constraint("Radius", 0, 2.0),
    Sketcher.Constraint("Radius", 1, 10.0),
    Sketcher.Constraint("Radius", 4, 7.5),
    Sketcher.Constraint("DistanceX", 0, 2, -1, 1, 5.0),
    Sketcher.Constraint("DistanceY", 3, 2, 3, 1, 0.066055),
    Sketcher.Constraint("DistanceY", -1, 1, 0, 2, 43.104922),
])
sketch10.setExpression("Constraints[16]", "Params.sketch10_diameter")
sketch10.setExpression("Constraints[17]", "Params.sketch10_radius")
sketch10.setExpression("Constraints[18]", "Params.sketch10_radius2")
sketch10.setExpression("Constraints[19]", "Params.sketch10_radius3")
pad5 = doc.addObject("PartDesign::Pad", "Pad004")
body2.addObject(pad5)
pad5.Profile = sketch10
pad5.setExpression("Length", "Params.pad5_length")

doc.recompute()
